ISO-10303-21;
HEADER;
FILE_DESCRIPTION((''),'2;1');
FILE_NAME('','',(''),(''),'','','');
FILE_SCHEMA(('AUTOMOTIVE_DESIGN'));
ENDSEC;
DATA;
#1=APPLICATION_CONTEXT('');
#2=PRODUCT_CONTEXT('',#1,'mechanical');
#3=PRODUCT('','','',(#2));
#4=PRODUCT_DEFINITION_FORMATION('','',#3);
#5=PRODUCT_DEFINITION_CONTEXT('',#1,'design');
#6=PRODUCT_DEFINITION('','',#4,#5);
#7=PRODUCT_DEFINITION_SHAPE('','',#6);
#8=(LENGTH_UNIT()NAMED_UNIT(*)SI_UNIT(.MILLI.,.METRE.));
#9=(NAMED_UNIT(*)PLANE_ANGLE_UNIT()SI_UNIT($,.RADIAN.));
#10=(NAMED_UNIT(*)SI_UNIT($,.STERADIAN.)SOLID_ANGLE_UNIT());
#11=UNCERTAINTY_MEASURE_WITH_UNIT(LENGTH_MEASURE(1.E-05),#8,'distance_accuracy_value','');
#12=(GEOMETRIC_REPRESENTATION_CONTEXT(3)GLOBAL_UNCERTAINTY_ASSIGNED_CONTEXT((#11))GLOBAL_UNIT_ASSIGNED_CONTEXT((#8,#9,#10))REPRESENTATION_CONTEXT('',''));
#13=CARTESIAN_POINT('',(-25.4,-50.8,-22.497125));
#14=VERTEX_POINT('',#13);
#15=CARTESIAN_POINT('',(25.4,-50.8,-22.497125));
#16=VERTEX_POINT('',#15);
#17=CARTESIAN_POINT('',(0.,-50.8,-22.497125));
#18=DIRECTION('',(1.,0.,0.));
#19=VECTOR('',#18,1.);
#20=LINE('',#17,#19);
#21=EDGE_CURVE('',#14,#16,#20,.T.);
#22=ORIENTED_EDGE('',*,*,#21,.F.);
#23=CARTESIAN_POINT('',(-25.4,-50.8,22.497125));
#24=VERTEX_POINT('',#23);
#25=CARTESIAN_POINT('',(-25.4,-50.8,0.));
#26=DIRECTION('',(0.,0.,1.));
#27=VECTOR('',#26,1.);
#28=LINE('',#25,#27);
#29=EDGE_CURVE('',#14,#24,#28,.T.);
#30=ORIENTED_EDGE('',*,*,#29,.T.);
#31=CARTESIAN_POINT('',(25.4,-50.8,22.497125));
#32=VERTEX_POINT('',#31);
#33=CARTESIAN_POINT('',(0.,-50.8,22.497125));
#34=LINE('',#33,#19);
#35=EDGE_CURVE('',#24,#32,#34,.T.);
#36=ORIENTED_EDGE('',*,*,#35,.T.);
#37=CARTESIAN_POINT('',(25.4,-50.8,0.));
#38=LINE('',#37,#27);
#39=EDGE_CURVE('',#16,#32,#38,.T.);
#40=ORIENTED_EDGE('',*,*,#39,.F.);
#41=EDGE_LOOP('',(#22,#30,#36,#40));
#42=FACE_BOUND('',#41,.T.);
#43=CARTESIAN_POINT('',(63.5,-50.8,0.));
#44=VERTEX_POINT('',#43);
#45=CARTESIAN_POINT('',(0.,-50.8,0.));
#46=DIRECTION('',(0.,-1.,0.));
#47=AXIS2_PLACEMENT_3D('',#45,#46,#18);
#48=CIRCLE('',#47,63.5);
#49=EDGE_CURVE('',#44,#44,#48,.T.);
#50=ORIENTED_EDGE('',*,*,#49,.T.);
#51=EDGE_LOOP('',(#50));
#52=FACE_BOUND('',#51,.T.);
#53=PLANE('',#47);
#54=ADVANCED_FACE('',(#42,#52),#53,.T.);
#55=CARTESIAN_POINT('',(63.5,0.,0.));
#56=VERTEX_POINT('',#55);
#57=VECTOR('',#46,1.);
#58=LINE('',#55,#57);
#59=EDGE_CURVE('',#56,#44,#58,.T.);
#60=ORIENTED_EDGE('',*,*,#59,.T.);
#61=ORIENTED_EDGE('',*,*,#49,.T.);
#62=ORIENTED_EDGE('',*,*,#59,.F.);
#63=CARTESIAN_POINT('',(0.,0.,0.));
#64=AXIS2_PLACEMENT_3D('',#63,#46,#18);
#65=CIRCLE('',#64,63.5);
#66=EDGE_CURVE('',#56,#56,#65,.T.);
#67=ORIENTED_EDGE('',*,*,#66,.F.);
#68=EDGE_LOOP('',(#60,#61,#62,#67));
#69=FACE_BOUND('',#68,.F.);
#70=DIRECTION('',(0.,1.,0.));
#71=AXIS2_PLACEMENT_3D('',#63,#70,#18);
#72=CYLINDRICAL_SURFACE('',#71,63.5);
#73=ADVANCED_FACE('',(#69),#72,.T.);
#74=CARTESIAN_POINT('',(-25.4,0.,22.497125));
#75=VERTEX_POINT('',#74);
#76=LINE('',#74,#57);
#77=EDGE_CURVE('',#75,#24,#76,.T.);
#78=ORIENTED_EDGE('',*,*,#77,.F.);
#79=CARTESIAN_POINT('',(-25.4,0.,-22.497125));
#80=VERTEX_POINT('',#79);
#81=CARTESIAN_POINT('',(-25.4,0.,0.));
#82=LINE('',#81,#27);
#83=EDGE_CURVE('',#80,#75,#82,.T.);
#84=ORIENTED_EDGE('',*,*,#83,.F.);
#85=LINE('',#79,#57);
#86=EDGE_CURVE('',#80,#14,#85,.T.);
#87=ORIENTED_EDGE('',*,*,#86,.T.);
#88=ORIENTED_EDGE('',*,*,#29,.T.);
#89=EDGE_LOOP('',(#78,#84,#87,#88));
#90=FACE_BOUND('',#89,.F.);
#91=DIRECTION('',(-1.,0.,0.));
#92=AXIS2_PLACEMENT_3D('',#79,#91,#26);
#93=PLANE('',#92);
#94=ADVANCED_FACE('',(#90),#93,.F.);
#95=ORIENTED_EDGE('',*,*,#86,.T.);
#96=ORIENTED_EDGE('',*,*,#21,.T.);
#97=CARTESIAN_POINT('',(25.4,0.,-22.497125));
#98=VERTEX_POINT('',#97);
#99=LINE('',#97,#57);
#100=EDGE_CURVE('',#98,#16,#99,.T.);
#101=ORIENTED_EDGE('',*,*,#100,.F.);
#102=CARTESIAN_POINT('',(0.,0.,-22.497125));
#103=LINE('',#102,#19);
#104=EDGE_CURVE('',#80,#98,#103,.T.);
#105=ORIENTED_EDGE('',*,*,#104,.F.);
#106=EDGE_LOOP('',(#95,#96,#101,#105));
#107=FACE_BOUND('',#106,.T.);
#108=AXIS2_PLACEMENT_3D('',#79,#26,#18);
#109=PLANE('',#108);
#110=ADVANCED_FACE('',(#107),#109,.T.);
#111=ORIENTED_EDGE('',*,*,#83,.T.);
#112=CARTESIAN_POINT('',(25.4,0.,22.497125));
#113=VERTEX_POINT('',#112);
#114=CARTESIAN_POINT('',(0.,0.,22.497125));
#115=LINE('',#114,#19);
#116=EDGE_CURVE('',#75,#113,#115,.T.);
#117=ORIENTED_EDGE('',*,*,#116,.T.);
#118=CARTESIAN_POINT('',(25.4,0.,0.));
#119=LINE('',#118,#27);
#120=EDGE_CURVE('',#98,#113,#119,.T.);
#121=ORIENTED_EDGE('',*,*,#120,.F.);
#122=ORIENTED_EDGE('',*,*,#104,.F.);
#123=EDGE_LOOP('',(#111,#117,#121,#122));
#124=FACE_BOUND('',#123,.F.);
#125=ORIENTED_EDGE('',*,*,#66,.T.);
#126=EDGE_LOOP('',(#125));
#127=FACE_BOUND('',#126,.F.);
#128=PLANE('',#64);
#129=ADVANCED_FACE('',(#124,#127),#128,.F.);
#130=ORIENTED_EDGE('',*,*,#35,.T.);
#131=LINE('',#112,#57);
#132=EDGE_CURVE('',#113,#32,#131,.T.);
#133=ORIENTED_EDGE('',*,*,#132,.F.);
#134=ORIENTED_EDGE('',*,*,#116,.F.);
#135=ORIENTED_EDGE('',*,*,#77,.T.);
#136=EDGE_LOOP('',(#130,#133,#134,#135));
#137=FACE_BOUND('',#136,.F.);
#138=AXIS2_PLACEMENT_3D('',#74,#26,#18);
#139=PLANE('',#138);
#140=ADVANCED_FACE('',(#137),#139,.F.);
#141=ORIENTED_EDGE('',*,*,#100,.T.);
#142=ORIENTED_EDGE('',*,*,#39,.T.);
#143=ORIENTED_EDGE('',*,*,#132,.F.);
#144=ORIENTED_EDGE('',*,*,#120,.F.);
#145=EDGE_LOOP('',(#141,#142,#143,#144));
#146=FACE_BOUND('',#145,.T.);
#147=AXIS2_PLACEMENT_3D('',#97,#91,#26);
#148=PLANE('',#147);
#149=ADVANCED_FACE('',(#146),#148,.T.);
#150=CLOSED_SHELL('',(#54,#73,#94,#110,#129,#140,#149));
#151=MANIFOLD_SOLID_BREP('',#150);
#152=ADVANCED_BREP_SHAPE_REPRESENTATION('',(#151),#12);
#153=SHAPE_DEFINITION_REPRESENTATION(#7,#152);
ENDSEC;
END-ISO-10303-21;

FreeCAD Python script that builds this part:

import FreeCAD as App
import Part
import Sketcher
from FreeCAD import Vector
Q = App.Units.Quantity


def add_polygon(sketch, points):
    """Adds a closed chain of lines whose ends are joined by coincident constraints."""
    first, n = sketch.GeometryCount, len(points)
    for a, b in zip(points, points[1:] + points[:1]):
        sketch.addGeometry(Part.LineSegment(App.Vector(*a, 0), App.Vector(*b, 0)), False)
    for i in range(n):
        sketch.addConstraint(Sketcher.Constraint("Coincident", first + i, 2, first + (i + 1) % n, 1))

doc = App.newDocument("Part")
params = doc.addObject("Spreadsheet::Sheet", "Params")
for row, (alias, value) in enumerate([
    ("sketch1_diameter", "5 in"),
    ("sketch1_width", "2 in"),
    ("pad1_length", "2 in"),
], start=1):
    params.set(f"A{row}", alias)
    params.set(f"B{row}", "=" + value)
    params.setAlias(f"B{row}", alias)

body = doc.addObject("PartDesign::Body", "Body")

sketch1 = doc.addObject("Sketcher::SketchObject", "Sketch")
body.addObject(sketch1)
sketch1.AttachmentSupport = (doc.XZ_Plane, [""])
sketch1.MapMode = "FlatFace"
sketch1.addGeometry(Part.Circle(Vector(0, 0, 0), Vector(0, 0, 1), 64), False)
add_polygon(sketch1, [(25, -22), (-25, -22), (-25, 22), (25, 22)])
sketch1.addConstraint([
    Sketcher.Constraint("Horizontal", 1),
    Sketcher.Constraint("Vertical", 2),
    Sketcher.Constraint("Horizontal", 3),
    Sketcher.Constraint("Vertical", 4),
    Sketcher.Constraint("Coincident", 0, 3, -1, 1),
    Sketcher.Constraint("Symmetric", 1, 2, 3, 2, -1, 1),
    Sketcher.Constraint("Diameter", 0, Q("5 in")),
    Sketcher.Constraint("DistanceX", 1, 2, 1, 1, Q("2 in")),
    Sketcher.Constraint("DistanceY", 2, 1, 2, 2, Q("44.99425 mm")),
])
sketch1.setExpression("Constraints[10]", "Params.sketch1_diameter")
sketch1.setExpression("Constraints[11]", "Params.sketch1_width")
pad1 = doc.addObject("PartDesign::Pad", "Pad")
body.addObject(pad1)
pad1.Profile = sketch1
pad1.setExpression("Length", "Params.pad1_length")

doc.recompute()
